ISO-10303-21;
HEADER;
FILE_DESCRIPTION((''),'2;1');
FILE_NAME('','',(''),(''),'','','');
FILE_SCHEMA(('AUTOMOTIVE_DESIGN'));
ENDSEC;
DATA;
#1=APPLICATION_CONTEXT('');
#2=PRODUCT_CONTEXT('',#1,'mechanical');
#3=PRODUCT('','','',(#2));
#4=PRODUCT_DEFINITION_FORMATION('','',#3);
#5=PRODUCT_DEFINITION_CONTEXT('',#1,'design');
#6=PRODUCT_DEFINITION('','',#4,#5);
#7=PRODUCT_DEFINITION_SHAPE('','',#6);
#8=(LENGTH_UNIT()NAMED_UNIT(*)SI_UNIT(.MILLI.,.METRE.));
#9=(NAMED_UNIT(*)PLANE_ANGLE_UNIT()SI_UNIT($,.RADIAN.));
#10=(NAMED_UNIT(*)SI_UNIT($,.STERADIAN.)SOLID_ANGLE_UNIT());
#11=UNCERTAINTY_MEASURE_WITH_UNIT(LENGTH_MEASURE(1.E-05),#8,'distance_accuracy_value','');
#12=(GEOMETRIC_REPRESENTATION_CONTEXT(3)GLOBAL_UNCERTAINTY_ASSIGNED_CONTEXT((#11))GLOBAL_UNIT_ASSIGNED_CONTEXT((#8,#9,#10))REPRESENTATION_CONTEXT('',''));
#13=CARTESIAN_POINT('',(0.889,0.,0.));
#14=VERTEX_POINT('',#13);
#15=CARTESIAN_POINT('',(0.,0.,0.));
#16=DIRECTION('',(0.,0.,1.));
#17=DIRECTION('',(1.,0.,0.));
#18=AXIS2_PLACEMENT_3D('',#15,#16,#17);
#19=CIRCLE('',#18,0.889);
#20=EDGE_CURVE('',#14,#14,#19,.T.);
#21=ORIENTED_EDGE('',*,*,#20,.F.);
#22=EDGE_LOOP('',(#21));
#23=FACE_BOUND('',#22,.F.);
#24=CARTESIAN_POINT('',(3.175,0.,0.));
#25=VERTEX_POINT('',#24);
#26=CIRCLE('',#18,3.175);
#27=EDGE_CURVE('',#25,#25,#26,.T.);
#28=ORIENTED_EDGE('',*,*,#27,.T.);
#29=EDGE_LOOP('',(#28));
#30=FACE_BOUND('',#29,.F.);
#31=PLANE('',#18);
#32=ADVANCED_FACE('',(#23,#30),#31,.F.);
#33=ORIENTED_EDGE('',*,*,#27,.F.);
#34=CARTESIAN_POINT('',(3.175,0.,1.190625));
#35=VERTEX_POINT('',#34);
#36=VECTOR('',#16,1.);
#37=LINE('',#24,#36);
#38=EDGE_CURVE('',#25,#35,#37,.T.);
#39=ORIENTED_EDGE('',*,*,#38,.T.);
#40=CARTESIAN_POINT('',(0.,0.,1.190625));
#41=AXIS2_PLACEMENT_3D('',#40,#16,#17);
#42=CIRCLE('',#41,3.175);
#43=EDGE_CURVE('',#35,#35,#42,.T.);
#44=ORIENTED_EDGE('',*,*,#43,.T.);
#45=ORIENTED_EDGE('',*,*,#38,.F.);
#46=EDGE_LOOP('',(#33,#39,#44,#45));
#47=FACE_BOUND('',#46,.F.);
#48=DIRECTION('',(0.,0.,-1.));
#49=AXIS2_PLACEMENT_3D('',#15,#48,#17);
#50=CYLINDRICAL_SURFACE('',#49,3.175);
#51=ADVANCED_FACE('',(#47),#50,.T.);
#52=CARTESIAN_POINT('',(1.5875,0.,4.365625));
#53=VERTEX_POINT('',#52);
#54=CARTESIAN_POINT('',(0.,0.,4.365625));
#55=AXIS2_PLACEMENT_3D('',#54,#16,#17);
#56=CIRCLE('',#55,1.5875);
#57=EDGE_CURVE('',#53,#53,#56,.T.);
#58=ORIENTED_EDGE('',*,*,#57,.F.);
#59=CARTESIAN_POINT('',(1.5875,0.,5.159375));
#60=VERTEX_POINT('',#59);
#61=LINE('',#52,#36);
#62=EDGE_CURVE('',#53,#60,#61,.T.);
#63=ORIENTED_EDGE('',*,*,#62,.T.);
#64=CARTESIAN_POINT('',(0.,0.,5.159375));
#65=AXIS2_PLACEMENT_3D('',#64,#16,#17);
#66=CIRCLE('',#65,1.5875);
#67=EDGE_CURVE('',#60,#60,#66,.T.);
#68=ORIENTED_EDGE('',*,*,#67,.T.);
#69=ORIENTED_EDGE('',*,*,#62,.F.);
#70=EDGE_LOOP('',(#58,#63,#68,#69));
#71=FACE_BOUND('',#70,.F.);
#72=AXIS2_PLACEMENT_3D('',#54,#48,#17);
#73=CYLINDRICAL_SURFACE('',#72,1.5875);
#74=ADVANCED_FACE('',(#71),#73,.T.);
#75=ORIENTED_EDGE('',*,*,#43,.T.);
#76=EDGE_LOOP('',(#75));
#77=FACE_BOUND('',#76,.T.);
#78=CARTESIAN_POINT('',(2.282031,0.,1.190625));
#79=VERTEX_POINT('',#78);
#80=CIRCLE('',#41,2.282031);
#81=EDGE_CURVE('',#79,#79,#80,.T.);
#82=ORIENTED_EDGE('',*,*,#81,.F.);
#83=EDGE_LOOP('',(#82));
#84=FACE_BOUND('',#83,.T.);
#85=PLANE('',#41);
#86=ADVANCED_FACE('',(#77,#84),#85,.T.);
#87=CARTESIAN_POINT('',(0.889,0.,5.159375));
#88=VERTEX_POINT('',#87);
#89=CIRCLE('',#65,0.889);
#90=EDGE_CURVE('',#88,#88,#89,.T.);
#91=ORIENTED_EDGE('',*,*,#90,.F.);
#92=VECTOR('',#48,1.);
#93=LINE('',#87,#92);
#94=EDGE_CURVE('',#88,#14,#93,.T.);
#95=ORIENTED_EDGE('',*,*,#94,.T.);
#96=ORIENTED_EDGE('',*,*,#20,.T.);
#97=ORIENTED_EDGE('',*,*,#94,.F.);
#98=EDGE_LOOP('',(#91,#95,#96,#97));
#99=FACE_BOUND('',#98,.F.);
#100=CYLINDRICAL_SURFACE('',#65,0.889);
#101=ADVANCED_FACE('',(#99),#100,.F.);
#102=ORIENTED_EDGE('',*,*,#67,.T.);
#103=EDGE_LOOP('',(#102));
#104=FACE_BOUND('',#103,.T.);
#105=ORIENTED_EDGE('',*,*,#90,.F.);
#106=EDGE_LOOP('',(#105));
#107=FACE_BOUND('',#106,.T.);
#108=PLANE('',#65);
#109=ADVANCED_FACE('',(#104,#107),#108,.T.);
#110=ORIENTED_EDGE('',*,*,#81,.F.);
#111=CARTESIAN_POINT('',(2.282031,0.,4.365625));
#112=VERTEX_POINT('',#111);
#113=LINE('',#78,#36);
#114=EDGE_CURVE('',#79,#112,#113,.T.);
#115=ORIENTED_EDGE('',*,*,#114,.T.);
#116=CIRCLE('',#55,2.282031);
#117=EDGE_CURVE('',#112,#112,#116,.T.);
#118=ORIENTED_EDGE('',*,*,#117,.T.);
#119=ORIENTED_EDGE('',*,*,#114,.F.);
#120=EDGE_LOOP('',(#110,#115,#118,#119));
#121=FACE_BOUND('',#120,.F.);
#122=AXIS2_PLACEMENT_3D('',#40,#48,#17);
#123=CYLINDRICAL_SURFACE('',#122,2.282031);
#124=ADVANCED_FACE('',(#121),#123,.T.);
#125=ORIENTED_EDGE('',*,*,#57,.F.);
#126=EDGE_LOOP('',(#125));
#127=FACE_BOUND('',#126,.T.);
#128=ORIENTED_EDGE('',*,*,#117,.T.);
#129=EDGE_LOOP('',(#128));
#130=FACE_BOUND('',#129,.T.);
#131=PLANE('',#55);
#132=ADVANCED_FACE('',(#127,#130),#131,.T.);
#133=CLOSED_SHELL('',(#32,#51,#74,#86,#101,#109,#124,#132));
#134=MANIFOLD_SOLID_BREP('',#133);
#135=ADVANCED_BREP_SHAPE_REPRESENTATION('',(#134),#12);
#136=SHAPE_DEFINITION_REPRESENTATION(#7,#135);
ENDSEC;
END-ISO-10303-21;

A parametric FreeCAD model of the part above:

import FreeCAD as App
import Part
import Sketcher
Q = App.Units.Quantity

doc = App.newDocument("Part")
body = doc.addObject("PartDesign::Body", "Body")

sketch1 = body.newObject("Sketcher::SketchObject", "Sketch")
sketch1.AttachmentSupport = (doc.getObject("XY_Plane"), [""])
sketch1.MapMode = "FlatFace"
sketch1.addGeometry(Part.Circle(App.Vector(0, 0, 0), App.Vector(0, 0, 1), 3.2), False)
sketch1.addConstraint([
    Sketcher.Constraint("Coincident", 0, 3, -1, 1),
    Sketcher.Constraint("Diameter", 0, Q("0.25 in")),
])
pad1 = body.newObject("PartDesign::Pad", "Pad")
pad1.Profile = sketch1
pad1.Length = Q("0.046875 in")

sketch2 = body.newObject("Sketcher::SketchObject", "Sketch001")
sketch2.AttachmentSupport = (doc.getObject("XY_Plane"), [""])
sketch2.MapMode = "FlatFace"
sketch2.AttachmentOffset = App.Placement(App.Vector(0, 0, 0.046875 * 25.4), App.Rotation())
sketch2.addGeometry(Part.Circle(App.Vector(0, 0, 0), App.Vector(0, 0, 1), 2.3), False)
sketch2.addConstraint([
    Sketcher.Constraint("Coincident", 0, 3, -1, 1),
    Sketcher.Constraint("Diameter", 0, Q("4.564062 mm")),
])
pad2 = body.newObject("PartDesign::Pad", "Pad001")
pad2.Profile = sketch2
pad2.Length = Q("0.125 in")

sketch3 = body.newObject("Sketcher::SketchObject", "Sketch002")
sketch3.AttachmentSupport = (doc.getObject("XY_Plane"), [""])
sketch3.MapMode = "FlatFace"
sketch3.AttachmentOffset = App.Placement(App.Vector(0, 0, 0.171875 * 25.4), App.Rotation())
sketch3.addGeometry(Part.Circle(App.Vector(0, 0, 0), App.Vector(0, 0, 1), 1.6), False)
sketch3.addConstraint([
    Sketcher.Constraint("Coincident", 0, 3, -1, 1),
    Sketcher.Constraint("Diameter", 0, Q("0.125 in")),
])
pad3 = body.newObject("PartDesign::Pad", "Pad002")
pad3.Profile = sketch3
pad3.Length = Q("0.03125 in")

sketch4 = body.newObject("Sketcher::SketchObject", "Sketch003")
sketch4.AttachmentSupport = (doc.getObject("XY_Plane"), [""])
sketch4.MapMode = "FlatFace"
sketch4.AttachmentOffset = App.Placement(App.Vector(0, 0, 0.203125 * 25.4), App.Rotation())
sketch4.addGeometry(Part.Circle(App.Vector(0, 0, 0), App.Vector(0, 0, 1), 0.9), False)
sketch4.addConstraint([
    Sketcher.Constraint("Coincident", 0, 3, -1, 1),
    Sketcher.Constraint("Diameter", 0, Q("0.07 in")),
])
pocket1 = body.newObject("PartDesign::Pocket", "Pocket")
pocket1.Profile = sketch4
pocket1.Type = "ThroughAll"

doc.recompute()
